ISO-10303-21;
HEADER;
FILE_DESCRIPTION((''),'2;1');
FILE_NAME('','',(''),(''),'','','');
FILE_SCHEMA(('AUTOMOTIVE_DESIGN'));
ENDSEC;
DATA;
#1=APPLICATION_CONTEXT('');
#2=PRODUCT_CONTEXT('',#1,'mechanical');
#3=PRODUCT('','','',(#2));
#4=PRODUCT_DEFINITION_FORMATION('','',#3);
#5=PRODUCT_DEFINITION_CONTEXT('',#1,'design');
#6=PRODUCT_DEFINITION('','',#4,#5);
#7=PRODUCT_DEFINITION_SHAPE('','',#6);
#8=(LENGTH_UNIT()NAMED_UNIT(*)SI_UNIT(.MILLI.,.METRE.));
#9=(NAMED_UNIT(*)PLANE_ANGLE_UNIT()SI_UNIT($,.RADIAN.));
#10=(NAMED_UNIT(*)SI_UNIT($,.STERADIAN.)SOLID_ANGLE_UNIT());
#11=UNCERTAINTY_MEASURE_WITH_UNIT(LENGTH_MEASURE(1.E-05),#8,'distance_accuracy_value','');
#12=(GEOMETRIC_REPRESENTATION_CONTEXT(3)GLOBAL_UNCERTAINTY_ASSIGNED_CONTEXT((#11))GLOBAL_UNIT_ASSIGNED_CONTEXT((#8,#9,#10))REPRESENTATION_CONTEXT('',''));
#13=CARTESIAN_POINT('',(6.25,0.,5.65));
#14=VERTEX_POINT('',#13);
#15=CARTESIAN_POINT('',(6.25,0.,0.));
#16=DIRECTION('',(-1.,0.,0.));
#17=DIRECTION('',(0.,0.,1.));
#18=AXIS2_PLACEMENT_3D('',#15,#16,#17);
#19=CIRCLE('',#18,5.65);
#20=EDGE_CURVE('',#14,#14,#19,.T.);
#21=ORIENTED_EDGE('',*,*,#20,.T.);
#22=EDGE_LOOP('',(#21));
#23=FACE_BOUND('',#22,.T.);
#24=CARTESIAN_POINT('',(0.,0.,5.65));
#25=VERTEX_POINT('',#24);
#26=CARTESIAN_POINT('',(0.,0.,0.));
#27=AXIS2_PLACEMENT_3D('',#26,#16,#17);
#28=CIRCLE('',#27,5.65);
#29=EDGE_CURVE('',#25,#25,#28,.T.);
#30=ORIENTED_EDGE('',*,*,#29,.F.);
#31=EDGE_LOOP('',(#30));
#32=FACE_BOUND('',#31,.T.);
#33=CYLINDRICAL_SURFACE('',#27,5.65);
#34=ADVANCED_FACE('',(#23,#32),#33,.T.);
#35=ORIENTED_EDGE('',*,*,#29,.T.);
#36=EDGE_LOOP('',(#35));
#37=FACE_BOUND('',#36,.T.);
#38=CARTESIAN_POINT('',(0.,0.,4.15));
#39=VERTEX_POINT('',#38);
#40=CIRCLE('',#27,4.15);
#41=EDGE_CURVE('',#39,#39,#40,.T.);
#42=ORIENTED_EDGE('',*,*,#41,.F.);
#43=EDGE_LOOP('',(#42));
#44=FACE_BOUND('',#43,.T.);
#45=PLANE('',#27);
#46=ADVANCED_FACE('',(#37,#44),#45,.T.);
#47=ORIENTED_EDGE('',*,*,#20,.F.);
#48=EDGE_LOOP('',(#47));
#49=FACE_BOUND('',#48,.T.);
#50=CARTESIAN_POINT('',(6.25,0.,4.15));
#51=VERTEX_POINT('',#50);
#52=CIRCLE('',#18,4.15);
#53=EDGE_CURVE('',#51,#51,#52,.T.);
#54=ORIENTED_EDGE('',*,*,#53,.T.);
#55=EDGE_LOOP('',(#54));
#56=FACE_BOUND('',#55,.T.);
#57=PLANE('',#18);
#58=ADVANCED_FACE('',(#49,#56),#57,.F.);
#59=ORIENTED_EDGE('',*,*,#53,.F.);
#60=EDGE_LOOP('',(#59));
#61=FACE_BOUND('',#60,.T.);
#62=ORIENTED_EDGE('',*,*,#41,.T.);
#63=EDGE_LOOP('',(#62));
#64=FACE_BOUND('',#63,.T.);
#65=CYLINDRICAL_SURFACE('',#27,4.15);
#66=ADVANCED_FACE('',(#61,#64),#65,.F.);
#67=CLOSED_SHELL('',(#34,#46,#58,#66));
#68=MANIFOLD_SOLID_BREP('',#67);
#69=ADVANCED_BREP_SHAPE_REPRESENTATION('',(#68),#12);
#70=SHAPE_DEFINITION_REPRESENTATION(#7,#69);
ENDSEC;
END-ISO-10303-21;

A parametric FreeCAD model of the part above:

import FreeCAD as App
import Part
import Sketcher

doc = App.newDocument("Part")
body = doc.addObject("PartDesign::Body", "Body")

# Sketch on XZ plane
sketch1 = doc.addObject("Sketcher::SketchObject", "Sketch")
body.addObject(sketch1)
sketch1.AttachmentSupport = (doc.XZ_Plane, [""])
sketch1.MapMode = "FlatFace"
sketch1.addGeometry([
    Part.LineSegment(App.Vector(0, 4.15, 0), App.Vector(0, 5.65, 0)),
    Part.LineSegment(App.Vector(0, 5.65, 0), App.Vector(6.25, 5.65, 0)),
    Part.LineSegment(App.Vector(6.25, 5.65, 0), App.Vector(6.25, 4.15, 0)),
    Part.LineSegment(App.Vector(6.25, 4.15, 0), App.Vector(0, 4.15, 0)),
], False)
sketch1.addConstraint([
    Sketcher.Constraint("Coincident", 0, 2, 1, 1),
    Sketcher.Constraint("Coincident", 1, 2, 2, 1),
    Sketcher.Constraint("Coincident", 2, 2, 3, 1),
    Sketcher.Constraint("Coincident", 3, 2, 0, 1),
    Sketcher.Constraint("Vertical", 0),
    Sketcher.Constraint("Horizontal", 1),
    Sketcher.Constraint("Vertical", 2),
    Sketcher.Constraint("Horizontal", 3),
    Sketcher.Constraint("PointOnObject", 0, 2, -2),
    Sketcher.Constraint("DistanceY", 0, 1, 0, 2, 1.5),
    Sketcher.Constraint("DistanceX", 1, 1, 1, 2, 6.25),
    Sketcher.Constraint("DistanceY", -1, 1, 0, 2, 5.65),
])
revolution = doc.addObject("PartDesign::Revolution", "Revolution")
body.addObject(revolution)
revolution.Profile = sketch1
revolution.ReferenceAxis = (sketch1, ["H_Axis"])
revolution.Angle = 360

doc.recompute()
